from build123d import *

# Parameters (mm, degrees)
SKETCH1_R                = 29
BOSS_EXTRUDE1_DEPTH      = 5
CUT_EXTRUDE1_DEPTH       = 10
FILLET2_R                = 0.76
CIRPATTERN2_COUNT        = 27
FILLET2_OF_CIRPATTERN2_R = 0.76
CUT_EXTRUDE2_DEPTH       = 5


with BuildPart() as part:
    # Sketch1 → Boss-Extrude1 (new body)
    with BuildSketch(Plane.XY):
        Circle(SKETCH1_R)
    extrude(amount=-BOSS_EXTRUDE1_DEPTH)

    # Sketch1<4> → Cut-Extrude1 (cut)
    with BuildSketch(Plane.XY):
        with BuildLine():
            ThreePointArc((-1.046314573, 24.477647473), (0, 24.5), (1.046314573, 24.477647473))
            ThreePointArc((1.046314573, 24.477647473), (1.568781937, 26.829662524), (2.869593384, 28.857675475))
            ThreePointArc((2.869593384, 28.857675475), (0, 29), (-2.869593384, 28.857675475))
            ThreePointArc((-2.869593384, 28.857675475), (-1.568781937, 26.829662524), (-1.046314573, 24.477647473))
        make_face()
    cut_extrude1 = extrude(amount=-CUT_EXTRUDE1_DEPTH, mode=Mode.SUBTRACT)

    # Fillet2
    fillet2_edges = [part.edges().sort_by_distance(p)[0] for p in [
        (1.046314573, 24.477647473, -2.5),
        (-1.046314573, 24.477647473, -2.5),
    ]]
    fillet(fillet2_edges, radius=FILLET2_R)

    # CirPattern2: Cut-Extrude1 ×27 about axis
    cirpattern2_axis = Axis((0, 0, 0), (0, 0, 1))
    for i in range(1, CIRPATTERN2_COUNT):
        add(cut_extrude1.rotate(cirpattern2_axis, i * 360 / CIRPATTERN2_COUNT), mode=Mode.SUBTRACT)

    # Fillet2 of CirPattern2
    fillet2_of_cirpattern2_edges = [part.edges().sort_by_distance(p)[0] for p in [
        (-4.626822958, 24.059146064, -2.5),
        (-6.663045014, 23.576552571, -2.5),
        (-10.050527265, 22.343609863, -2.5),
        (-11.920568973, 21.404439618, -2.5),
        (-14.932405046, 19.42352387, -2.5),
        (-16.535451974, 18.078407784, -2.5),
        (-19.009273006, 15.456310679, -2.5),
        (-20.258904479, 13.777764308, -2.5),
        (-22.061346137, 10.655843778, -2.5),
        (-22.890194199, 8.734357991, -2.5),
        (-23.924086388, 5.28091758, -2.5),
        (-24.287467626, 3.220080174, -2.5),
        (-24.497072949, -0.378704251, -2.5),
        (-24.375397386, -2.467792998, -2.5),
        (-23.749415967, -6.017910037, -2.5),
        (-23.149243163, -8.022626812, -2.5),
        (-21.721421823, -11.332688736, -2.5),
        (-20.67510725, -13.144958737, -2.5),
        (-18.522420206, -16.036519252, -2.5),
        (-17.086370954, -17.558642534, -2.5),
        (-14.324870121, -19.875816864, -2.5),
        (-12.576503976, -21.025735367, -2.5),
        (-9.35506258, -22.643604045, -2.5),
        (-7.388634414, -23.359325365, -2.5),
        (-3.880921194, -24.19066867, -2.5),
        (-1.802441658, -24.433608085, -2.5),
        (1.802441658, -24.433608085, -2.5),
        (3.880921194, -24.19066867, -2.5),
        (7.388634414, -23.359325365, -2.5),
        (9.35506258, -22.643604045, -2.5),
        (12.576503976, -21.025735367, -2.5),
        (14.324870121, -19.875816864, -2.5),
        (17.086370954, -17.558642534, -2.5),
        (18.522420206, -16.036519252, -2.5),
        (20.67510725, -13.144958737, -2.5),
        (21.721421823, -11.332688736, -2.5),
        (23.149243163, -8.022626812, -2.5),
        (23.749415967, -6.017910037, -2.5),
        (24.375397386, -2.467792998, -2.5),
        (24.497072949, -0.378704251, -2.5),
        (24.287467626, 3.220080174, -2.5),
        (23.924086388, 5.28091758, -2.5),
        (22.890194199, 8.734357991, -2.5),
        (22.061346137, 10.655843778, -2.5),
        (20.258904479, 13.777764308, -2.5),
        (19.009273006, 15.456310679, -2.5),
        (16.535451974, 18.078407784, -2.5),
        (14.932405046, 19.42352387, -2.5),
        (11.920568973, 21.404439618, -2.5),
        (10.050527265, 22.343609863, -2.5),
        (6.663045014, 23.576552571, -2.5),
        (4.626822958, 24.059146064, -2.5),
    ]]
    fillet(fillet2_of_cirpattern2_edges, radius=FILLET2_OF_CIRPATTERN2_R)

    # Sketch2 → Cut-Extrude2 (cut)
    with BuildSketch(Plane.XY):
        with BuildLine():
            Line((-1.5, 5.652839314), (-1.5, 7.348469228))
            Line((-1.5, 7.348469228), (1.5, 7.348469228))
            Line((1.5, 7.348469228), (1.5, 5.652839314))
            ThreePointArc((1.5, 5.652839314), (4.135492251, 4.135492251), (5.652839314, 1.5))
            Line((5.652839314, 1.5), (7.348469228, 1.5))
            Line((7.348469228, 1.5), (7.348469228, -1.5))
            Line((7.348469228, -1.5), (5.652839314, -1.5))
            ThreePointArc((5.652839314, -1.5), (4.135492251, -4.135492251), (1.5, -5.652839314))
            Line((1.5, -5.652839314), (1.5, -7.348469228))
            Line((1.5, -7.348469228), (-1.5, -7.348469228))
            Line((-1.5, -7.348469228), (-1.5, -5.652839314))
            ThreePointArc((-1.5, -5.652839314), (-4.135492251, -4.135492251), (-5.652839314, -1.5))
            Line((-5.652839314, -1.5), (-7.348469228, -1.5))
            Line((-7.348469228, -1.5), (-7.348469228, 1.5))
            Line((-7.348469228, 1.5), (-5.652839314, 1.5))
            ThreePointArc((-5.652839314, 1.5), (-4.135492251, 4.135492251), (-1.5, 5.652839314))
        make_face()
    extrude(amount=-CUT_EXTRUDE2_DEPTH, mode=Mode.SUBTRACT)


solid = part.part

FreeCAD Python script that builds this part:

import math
import FreeCAD as App
import Part
import Sketcher

V = App.Vector
Q = App.Units.Quantity


def edges_at(feature, points):
    """Names of the edges that pass closest to the given points."""
    edges = feature.Shape.Edges
    near = lambda p: min(range(len(edges)), key=lambda i: edges[i].distToShape(Part.Vertex(*p))[0])
    return sorted({f"Edge{near(p) + 1}" for p in points})

doc = App.newDocument("Part")
body = doc.addObject("PartDesign::Body", "Body")

sketch1 = body.newObject("Sketcher::SketchObject", "Sketch")
sketch1.AttachmentSupport = (doc.getObject("XY_Plane"), [""])
sketch1.MapMode = "FlatFace"
sketch1.addGeometry(Part.Circle(V(0, 0, 0), V(0, 0, 1), 29), False)
sketch1.addConstraint(Sketcher.Constraint("Coincident", 0, 3, -1, 1))
sketch1.addConstraint(Sketcher.Constraint("Diameter", 0, Q("58 mm")))
pad1 = body.newObject("PartDesign::Pad", "Pad")
pad1.Profile = sketch1
pad1.Length = 5
pad1.Reversed = True

sketch2 = body.newObject("Sketcher::SketchObject", "Sketch001")
sketch2.AttachmentSupport = (doc.getObject("XY_Plane"), [""])
sketch2.MapMode = "FlatFace"
sketch2.addGeometry(Part.ArcOfCircle(Part.Circle(V(0, 0, 0), V(0, 0, 1), 24.5), math.radians(87.552341), math.radians(92.447659)), False)
sketch2.addGeometry(Part.ArcOfCircle(Part.Circle(V(7.925374, 24.183597, 0), V(0, 0, 1), 6.885342), math.radians(137.246564), math.radians(177.552341)), False)
sketch2.addGeometry(Part.ArcOfCircle(Part.Circle(V(0, 0, 0), V(0, 0, 1), 29), math.radians(84.321204), math.radians(95.678796)), False)
sketch2.addGeometry(Part.ArcOfCircle(Part.Circle(V(-7.925374, 24.183597, 0), V(0, 0, 1), 6.885342), math.radians(2.447659), math.radians(42.753436)), False)
sketch2.addConstraint(Sketcher.Constraint("Coincident", 0, 1, 1, 2))
sketch2.addConstraint(Sketcher.Constraint("Coincident", 1, 1, 2, 1))
sketch2.addConstraint(Sketcher.Constraint("Coincident", 2, 2, 3, 2))
sketch2.addConstraint(Sketcher.Constraint("Coincident", 3, 1, 0, 2))
sketch2.addConstraint(Sketcher.Constraint("Coincident", 0, 3, -1, 1))
sketch2.addConstraint(Sketcher.Constraint("Coincident", 2, 3, -1, 1))
sketch2.addConstraint(Sketcher.Constraint("Equal", 1, 3))
sketch2.addConstraint(Sketcher.Constraint("Symmetric", 1, 3, 3, 3, -2))
sketch2.addConstraint(Sketcher.Constraint("Radius", 2, Q("29 mm")))
sketch2.addConstraint(Sketcher.Constraint("Radius", 0, Q("24.5 mm")))
sketch2.addConstraint(Sketcher.Constraint("Radius", 1, Q("6.885342 mm")))
sketch2.addConstraint(Sketcher.Constraint("DistanceX", 3, 3, 1, 3, Q("15.850749 mm")))
sketch2.addConstraint(Sketcher.Constraint("DistanceY", 1, 3, 0, 1, Q("0.29405 mm")))
pocket1 = body.newObject("PartDesign::Pocket", "Pocket")
pocket1.Profile = sketch2
pocket1.Length = 10
doc.recompute()

fillet = body.newObject("PartDesign::Fillet", "Fillet")
fillet.Base = (pocket1, edges_at(pocket1, [(1.046, 24.478, -2.5), (-1.046, 24.478, -2.5)]))
fillet.Radius = 0.76
doc.recompute()

polarpattern = body.newObject("PartDesign::PolarPattern", "PolarPattern")
polarpattern.Originals = [pocket1]
polarpattern.Axis = (doc.getObject("Z_Axis"), [""])
polarpattern.Angle = 360
polarpattern.Occurrences = 27
body.Tip = polarpattern
doc.recompute()

fillet2 = body.newObject("PartDesign::Fillet", "Fillet001")
fillet2.Base = (polarpattern, edges_at(polarpattern, [
    (-4.627, 24.059, -2.5),
    (-6.663, 23.577, -2.5),
    (-10.051, 22.344, -2.5),
    (-11.921, 21.404, -2.5),
    (-14.932, 19.424, -2.5),
    (-16.535, 18.078, -2.5),
    (-19.009, 15.456, -2.5),
    (-20.259, 13.778, -2.5),
    (-22.061, 10.656, -2.5),
    (-22.89, 8.734, -2.5),
    (-23.924, 5.281, -2.5),
    (-24.287, 3.22, -2.5),
    (-24.497, -0.379, -2.5),
    (-24.375, -2.468, -2.5),
    (-23.749, -6.018, -2.5),
    (-23.149, -8.023, -2.5),
    (-21.721, -11.333, -2.5),
    (-20.675, -13.145, -2.5),
    (-18.522, -16.037, -2.5),
    (-17.086, -17.559, -2.5),
    (-14.325, -19.876, -2.5),
    (-12.577, -21.026, -2.5),
    (-9.355, -22.644, -2.5),
    (-7.389, -23.359, -2.5),
    (-3.881, -24.191, -2.5),
    (-1.802, -24.434, -2.5),
    (1.802, -24.434, -2.5),
    (3.881, -24.191, -2.5),
    (7.389, -23.359, -2.5),
    (9.355, -22.644, -2.5),
    (12.577, -21.026, -2.5),
    (14.325, -19.876, -2.5),
    (17.086, -17.559, -2.5),
    (18.522, -16.037, -2.5),
    (20.675, -13.145, -2.5),
    (21.721, -11.333, -2.5),
    (23.149, -8.023, -2.5),
    (23.749, -6.018, -2.5),
    (24.375, -2.468, -2.5),
    (24.497, -0.379, -2.5),
    (24.287, 3.22, -2.5),
    (23.924, 5.281, -2.5),
    (22.89, 8.734, -2.5),
    (22.061, 10.656, -2.5),
    (20.259, 13.778, -2.5),
    (19.009, 15.456, -2.5),
    (16.535, 18.078, -2.5),
    (14.932, 19.424, -2.5),
    (11.921, 21.404, -2.5),
    (10.051, 22.344, -2.5),
    (6.663, 23.577, -2.5),
    (4.627, 24.059, -2.5),
]))
fillet2.Radius = 0.76

sketch3 = body.newObject("Sketcher::SketchObject", "Sketch002")
sketch3.AttachmentSupport = (doc.getObject("XY_Plane"), [""])
sketch3.MapMode = "FlatFace"
sketch3.addGeometry(Part.LineSegment(V(-1.5, 7.348469, 0), V(-1.5, 5.652839, 0)), False)
sketch3.addGeometry(Part.ArcOfCircle(Part.Circle(V(0, 0, 0), V(0, 0, 1), 5.848469), math.radians(104.861144), math.radians(165.138856)), False)
sketch3.addGeometry(Part.LineSegment(V(-5.652839, 1.5, 0), V(-7.348469, 1.5, 0)), False)
sketch3.addGeometry(Part.LineSegment(V(-7.348469, 1.5, 0), V(-7.348469, -1.5, 0)), False)
sketch3.addGeometry(Part.LineSegment(V(-7.348469, -1.5, 0), V(-5.652839, -1.5, 0)), False)
sketch3.addGeometry(Part.ArcOfCircle(Part.Circle(V(0, 0, 0), V(0, 0, 1), 5.848469), math.radians(-165.138856), math.radians(-104.861144)), False)
sketch3.addGeometry(Part.LineSegment(V(-1.5, -5.652839, 0), V(-1.5, -7.348469, 0)), False)
sketch3.addGeometry(Part.LineSegment(V(-1.5, -7.348469, 0), V(1.5, -7.348469, 0)), False)
sketch3.addGeometry(Part.LineSegment(V(1.5, -7.348469, 0), V(1.5, -5.652839, 0)), False)
sketch3.addGeometry(Part.ArcOfCircle(Part.Circle(V(0, 0, 0), V(0, 0, 1), 5.848469), math.radians(-75.138856), math.radians(-14.861144)), False)
sketch3.addGeometry(Part.LineSegment(V(5.652839, -1.5, 0), V(7.348469, -1.5, 0)), False)
sketch3.addGeometry(Part.LineSegment(V(7.348469, -1.5, 0), V(7.348469, 1.5, 0)), False)
sketch3.addGeometry(Part.LineSegment(V(7.348469, 1.5, 0), V(5.652839, 1.5, 0)), False)
sketch3.addGeometry(Part.ArcOfCircle(Part.Circle(V(0, 0, 0), V(0, 0, 1), 5.848469), math.radians(14.861144), math.radians(75.138856)), False)
sketch3.addGeometry(Part.LineSegment(V(1.5, 5.652839, 0), V(1.5, 7.348469, 0)), False)
sketch3.addGeometry(Part.LineSegment(V(1.5, 7.348469, 0), V(-1.5, 7.348469, 0)), False)
sketch3.addConstraint(Sketcher.Constraint("Coincident", 0, 2, 1, 1))
sketch3.addConstraint(Sketcher.Constraint("Coincident", 1, 2, 2, 1))
sketch3.addConstraint(Sketcher.Constraint("Coincident", 2, 2, 3, 1))
sketch3.addConstraint(Sketcher.Constraint("Coincident", 3, 2, 4, 1))
sketch3.addConstraint(Sketcher.Constraint("Coincident", 4, 2, 5, 1))
sketch3.addConstraint(Sketcher.Constraint("Coincident", 5, 2, 6, 1))
sketch3.addConstraint(Sketcher.Constraint("Coincident", 6, 2, 7, 1))
sketch3.addConstraint(Sketcher.Constraint("Coincident", 7, 2, 8, 1))
sketch3.addConstraint(Sketcher.Constraint("Coincident", 8, 2, 9, 1))
sketch3.addConstraint(Sketcher.Constraint("Coincident", 9, 2, 10, 1))
sketch3.addConstraint(Sketcher.Constraint("Coincident", 10, 2, 11, 1))
sketch3.addConstraint(Sketcher.Constraint("Coincident", 11, 2, 12, 1))
sketch3.addConstraint(Sketcher.Constraint("Coincident", 12, 2, 13, 1))
sketch3.addConstraint(Sketcher.Constraint("Coincident", 13, 2, 14, 1))
sketch3.addConstraint(Sketcher.Constraint("Coincident", 14, 2, 15, 1))
sketch3.addConstraint(Sketcher.Constraint("Coincident", 15, 2, 0, 1))
sketch3.addConstraint(Sketcher.Constraint("Vertical", 0))
sketch3.addConstraint(Sketcher.Constraint("Horizontal", 2))
sketch3.addConstraint(Sketcher.Constraint("Vertical", 3))
sketch3.addConstraint(Sketcher.Constraint("Horizontal", 4))
sketch3.addConstraint(Sketcher.Constraint("Vertical", 6))
sketch3.addConstraint(Sketcher.Constraint("Horizontal", 7))
sketch3.addConstraint(Sketcher.Constraint("Vertical", 8))
sketch3.addConstraint(Sketcher.Constraint("Horizontal", 10))
sketch3.addConstraint(Sketcher.Constraint("Vertical", 11))
sketch3.addConstraint(Sketcher.Constraint("Horizontal", 12))
sketch3.addConstraint(Sketcher.Constraint("Vertical", 14))
sketch3.addConstraint(Sketcher.Constraint("Horizontal", 15))
sketch3.addConstraint(Sketcher.Constraint("Coincident", 1, 3, -1, 1))
sketch3.addConstraint(Sketcher.Constraint("Coincident", 5, 3, -1, 1))
sketch3.addConstraint(Sketcher.Constraint("Coincident", 9, 3, -1, 1))
sketch3.addConstraint(Sketcher.Constraint("Coincident", 13, 3, -1, 1))
sketch3.addConstraint(Sketcher.Constraint("Equal", 1, 5))
sketch3.addConstraint(Sketcher.Constraint("Equal", 5, 9))
sketch3.addConstraint(Sketcher.Constraint("Equal", 9, 13))
sketch3.addConstraint(Sketcher.Constraint("Symmetric", 2, 2, 10, 2, -1, 1))
sketch3.addConstraint(Sketcher.Constraint("Symmetric", 6, 2, 14, 2, -1, 1))
sketch3.addConstraint(Sketcher.Constraint("Horizontal", 5, 2, 8, 2))
sketch3.addConstraint(Sketcher.Constraint("Horizontal", 4, 2, 9, 2))
sketch3.addConstraint(Sketcher.Constraint("Horizontal", 2, 2, 11, 2))
sketch3.addConstraint(Sketcher.Constraint("Horizontal", 0, 2, 13, 2))
sketch3.addConstraint(Sketcher.Constraint("Equal", 12, 0))
sketch3.addConstraint(Sketcher.Constraint("Equal", 15, 3))
sketch3.addConstraint(Sketcher.Constraint("DistanceX", 7, 1, 7, 2, Q("3 mm")))
sketch3.addConstraint(Sketcher.Constraint("Radius", 1, Q("5.848469 mm")))
sketch3.addConstraint(Sketcher.Constraint("DistanceX", 2, 2, 2, 1, Q("1.69563 mm")))
pocket2 = body.newObject("PartDesign::Pocket", "Pocket001")
pocket2.Profile = sketch3
pocket2.Length = 5

doc.recompute()
